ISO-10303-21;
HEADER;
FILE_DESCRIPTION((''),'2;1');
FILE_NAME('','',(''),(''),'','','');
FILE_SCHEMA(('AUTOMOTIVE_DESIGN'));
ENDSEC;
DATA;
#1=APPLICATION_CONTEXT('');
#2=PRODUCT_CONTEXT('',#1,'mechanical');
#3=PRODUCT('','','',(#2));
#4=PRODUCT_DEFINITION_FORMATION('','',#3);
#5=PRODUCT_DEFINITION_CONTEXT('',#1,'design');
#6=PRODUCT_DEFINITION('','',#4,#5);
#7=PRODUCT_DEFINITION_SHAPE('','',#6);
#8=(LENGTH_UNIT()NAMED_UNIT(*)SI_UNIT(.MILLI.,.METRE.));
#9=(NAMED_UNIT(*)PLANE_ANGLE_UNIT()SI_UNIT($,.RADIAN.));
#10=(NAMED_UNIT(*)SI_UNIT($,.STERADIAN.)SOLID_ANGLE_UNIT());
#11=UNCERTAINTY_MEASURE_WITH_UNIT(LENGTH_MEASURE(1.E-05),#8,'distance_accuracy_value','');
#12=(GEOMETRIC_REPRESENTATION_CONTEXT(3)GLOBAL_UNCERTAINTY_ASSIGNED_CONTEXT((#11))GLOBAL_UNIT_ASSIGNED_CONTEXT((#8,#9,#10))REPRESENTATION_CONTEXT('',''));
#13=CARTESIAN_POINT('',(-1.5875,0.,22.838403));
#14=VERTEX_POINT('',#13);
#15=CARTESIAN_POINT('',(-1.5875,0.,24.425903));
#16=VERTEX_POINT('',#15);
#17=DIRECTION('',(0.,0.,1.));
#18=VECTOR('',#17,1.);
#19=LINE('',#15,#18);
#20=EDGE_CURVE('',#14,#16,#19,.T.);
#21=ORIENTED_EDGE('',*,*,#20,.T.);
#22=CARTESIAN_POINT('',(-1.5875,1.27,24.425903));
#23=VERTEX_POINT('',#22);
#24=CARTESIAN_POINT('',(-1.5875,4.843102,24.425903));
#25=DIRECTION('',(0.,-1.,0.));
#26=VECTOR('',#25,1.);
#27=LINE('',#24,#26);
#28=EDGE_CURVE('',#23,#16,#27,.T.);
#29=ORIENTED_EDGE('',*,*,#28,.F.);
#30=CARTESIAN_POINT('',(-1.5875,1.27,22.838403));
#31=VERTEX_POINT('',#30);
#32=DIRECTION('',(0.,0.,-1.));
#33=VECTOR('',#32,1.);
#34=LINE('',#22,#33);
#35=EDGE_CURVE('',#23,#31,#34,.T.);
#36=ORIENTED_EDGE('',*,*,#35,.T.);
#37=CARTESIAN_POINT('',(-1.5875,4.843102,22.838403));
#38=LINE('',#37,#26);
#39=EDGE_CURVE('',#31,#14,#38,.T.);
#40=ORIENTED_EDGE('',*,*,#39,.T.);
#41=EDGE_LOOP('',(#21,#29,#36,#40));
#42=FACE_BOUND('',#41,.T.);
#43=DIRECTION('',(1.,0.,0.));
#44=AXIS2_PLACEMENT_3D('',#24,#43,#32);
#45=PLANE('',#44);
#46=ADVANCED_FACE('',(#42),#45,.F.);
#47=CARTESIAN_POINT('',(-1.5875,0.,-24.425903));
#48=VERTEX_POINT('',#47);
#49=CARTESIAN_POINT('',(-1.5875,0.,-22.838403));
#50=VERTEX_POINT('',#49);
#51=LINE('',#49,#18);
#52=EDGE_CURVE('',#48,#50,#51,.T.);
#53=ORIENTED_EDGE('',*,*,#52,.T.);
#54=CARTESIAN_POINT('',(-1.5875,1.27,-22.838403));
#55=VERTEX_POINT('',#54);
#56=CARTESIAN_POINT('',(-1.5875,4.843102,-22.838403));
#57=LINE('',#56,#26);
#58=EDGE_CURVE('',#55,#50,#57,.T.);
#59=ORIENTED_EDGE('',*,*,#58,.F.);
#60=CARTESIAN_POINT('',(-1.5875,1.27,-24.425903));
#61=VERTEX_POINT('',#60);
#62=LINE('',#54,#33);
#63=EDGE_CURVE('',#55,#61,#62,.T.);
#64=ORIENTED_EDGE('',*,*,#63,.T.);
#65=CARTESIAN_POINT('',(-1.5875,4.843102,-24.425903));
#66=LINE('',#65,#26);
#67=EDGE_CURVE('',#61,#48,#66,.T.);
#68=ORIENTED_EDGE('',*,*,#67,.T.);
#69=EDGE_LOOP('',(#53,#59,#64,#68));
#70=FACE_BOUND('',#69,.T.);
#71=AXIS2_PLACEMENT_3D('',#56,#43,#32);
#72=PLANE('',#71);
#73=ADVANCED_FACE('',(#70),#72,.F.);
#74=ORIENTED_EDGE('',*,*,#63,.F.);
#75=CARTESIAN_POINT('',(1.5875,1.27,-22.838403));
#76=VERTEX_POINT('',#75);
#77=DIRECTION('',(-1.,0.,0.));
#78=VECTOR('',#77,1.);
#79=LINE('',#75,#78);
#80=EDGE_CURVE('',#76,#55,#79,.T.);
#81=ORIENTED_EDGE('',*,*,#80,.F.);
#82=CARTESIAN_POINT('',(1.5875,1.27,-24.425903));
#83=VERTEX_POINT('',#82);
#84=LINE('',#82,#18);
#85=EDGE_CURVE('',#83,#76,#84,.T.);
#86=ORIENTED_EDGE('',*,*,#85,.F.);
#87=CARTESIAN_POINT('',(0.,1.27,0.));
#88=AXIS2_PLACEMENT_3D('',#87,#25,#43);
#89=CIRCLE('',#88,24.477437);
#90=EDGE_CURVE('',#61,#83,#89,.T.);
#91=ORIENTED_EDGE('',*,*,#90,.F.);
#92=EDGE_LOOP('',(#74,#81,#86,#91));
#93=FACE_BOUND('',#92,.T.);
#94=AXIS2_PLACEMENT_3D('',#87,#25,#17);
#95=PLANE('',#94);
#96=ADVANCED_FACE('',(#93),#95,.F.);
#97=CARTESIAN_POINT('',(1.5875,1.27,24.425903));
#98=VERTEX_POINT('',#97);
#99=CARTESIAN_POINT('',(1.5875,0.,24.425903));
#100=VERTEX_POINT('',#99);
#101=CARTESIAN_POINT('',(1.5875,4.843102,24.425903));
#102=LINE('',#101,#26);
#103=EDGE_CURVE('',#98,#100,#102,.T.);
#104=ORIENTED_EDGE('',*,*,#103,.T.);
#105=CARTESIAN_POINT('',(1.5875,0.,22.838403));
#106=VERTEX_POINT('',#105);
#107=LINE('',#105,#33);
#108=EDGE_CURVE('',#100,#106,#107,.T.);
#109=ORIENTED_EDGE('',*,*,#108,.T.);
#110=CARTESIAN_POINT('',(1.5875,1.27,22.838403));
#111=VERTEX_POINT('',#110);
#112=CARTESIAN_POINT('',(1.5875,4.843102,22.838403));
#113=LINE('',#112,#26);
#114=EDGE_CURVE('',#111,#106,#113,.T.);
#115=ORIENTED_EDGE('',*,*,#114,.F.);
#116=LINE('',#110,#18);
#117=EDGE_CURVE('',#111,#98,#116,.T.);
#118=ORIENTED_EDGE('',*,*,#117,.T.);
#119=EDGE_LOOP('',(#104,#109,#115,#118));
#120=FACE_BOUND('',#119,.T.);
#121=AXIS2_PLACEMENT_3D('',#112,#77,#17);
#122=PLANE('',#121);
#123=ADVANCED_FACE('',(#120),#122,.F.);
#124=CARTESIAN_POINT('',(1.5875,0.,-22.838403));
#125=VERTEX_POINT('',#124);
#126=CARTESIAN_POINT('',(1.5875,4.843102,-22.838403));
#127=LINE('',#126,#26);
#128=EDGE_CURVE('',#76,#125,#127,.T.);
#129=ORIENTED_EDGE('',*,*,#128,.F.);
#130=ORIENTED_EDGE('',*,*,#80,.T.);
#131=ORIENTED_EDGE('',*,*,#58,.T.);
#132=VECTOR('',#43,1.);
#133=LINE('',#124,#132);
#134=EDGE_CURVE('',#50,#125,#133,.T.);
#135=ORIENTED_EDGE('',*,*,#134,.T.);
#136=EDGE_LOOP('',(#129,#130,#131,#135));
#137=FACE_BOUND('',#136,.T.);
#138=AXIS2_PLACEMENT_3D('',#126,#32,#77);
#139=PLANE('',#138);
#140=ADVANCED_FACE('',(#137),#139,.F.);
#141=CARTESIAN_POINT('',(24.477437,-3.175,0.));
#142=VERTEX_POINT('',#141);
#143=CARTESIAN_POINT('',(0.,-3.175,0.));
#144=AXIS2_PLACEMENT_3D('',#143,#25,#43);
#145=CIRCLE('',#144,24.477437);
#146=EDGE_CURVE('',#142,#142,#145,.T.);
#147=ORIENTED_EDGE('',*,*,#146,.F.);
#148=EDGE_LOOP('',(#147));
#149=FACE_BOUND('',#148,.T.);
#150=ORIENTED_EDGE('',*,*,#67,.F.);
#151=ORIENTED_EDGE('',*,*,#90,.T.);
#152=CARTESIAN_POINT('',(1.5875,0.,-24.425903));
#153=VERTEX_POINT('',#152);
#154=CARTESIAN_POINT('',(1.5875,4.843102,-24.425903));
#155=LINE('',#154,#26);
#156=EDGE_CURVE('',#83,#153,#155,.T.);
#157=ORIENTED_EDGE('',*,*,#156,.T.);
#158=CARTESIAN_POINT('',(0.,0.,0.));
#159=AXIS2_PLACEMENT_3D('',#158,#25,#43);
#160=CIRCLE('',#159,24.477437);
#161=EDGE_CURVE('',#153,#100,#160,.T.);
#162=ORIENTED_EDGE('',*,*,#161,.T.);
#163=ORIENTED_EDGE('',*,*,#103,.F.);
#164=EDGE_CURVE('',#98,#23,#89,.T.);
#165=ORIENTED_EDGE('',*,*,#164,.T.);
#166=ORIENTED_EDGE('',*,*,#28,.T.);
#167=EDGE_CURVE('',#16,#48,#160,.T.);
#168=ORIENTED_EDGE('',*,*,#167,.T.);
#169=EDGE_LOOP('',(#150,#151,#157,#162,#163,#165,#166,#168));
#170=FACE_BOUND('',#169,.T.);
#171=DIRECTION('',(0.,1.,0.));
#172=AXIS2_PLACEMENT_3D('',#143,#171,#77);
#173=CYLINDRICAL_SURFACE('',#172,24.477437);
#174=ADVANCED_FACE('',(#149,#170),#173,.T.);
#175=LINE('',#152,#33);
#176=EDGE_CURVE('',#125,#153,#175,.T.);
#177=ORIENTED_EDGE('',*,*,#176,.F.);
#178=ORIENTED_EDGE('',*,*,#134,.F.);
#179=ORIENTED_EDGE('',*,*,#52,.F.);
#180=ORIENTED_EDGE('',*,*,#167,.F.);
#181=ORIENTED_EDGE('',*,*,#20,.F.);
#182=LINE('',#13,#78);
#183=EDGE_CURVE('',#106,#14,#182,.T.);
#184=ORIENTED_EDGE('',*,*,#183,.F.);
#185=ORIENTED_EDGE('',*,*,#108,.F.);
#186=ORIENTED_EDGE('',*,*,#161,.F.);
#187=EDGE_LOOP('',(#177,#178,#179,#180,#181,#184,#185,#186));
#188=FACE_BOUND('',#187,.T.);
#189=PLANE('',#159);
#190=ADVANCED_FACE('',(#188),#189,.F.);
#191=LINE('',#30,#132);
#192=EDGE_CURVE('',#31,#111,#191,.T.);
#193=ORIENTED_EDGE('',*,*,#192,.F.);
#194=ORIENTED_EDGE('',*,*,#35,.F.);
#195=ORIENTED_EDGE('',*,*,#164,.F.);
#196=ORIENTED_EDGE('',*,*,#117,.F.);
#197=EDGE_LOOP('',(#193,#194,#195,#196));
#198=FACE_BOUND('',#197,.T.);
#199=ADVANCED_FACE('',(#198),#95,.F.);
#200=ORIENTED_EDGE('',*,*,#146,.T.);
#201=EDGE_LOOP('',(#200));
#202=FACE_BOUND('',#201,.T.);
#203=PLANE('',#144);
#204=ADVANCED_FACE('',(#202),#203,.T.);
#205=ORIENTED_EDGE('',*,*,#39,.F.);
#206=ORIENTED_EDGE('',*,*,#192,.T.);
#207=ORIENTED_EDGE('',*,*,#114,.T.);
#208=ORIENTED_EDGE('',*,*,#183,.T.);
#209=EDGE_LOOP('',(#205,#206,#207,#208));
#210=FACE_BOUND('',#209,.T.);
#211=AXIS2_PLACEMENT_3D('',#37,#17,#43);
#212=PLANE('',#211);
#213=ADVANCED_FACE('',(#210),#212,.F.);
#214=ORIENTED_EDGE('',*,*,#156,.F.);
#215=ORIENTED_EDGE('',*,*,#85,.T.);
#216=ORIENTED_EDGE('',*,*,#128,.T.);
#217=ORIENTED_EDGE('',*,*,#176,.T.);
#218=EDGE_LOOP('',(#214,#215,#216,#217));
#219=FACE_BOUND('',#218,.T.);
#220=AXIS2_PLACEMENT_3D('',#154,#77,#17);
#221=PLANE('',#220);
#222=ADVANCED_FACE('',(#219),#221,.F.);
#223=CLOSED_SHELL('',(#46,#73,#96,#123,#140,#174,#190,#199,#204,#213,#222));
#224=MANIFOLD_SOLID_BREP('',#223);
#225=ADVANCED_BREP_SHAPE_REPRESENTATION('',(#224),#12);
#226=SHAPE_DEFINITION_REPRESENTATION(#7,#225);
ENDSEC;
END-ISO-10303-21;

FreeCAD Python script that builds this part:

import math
import FreeCAD as App
import Part
import Sketcher
Q = App.Units.Quantity

doc = App.newDocument("Part")
params = doc.addObject("Spreadsheet::Sheet", "Params")
for row, (alias, value) in enumerate([
    ("pad1_length", "0.125 in"),
    ("sketch2_width", "0.125 in"),
    ("sketch2_height", "0.0625 in"),
    ("pad2_length", "0.05 in"),
], start=1):
    params.set(f"A{row}", alias)
    params.set(f"B{row}", "=" + value)
    params.setAlias(f"B{row}", alias)

body = doc.addObject("PartDesign::Body", "Body")

# Sketch on XZ plane
sketch1 = doc.addObject("Sketcher::SketchObject", "Sketch")
body.addObject(sketch1)
sketch1.AttachmentSupport = (doc.XZ_Plane, [""])
sketch1.MapMode = "FlatFace"
sketch1.addGeometry(Part.Circle(App.Vector(0, 0, 0), App.Vector(0, 0, 1), 24), False)
sketch1.addConstraint(Sketcher.Constraint("Coincident", 0, 3, -1, 1))
sketch1.addConstraint(Sketcher.Constraint("Diameter", 0, Q("48.954873 mm")))
pad1 = doc.addObject("PartDesign::Pad", "Pad")
body.addObject(pad1)
pad1.Profile = sketch1
pad1.setExpression("Length", "Params.pad1_length")

# Sketch on XZ plane
sketch2 = doc.addObject("Sketcher::SketchObject", "Sketch001")
body.addObject(sketch2)
sketch2.AttachmentSupport = (doc.XZ_Plane, [""])
sketch2.MapMode = "FlatFace"
sketch2.AttachmentOffset = App.Placement(App.Vector(0, 0, -0.05 * 25.4), App.Rotation())
sketch2.addGeometry(Part.LineSegment(App.Vector(1.6, -22.8, 0), App.Vector(1.6, -24.4, 0)), False)
sketch2.addGeometry(Part.ArcOfCircle(Part.Circle(App.Vector(0, 0, 0), App.Vector(0, 0, 1), 24.5), math.radians(-93.72), math.radians(-86.28)), False)
sketch2.addGeometry(Part.LineSegment(App.Vector(-1.6, -24.4, 0), App.Vector(-1.6, -22.8, 0)), False)
sketch2.addGeometry(Part.LineSegment(App.Vector(-1.6, -22.8, 0), App.Vector(1.6, -22.8, 0)), False)
sketch2.addGeometry(Part.LineSegment(App.Vector(-1.6, 22.8, 0), App.Vector(-1.6, 24.4, 0)), False)
sketch2.addGeometry(Part.ArcOfCircle(Part.Circle(App.Vector(0, 0, 0), App.Vector(0, 0, 1), 24.5), math.radians(86.28), math.radians(93.72)), False)
sketch2.addGeometry(Part.LineSegment(App.Vector(1.6, 24.4, 0), App.Vector(1.6, 22.8, 0)), False)
sketch2.addGeometry(Part.LineSegment(App.Vector(1.6, 22.8, 0), App.Vector(-1.6, 22.8, 0)), False)
sketch2.addConstraint(Sketcher.Constraint("Coincident", 0, 2, 1, 2))
sketch2.addConstraint(Sketcher.Constraint("Coincident", 1, 1, 2, 1))
sketch2.addConstraint(Sketcher.Constraint("Coincident", 2, 2, 3, 1))
sketch2.addConstraint(Sketcher.Constraint("Coincident", 3, 2, 0, 1))
sketch2.addConstraint(Sketcher.Constraint("Coincident", 4, 2, 5, 2))
sketch2.addConstraint(Sketcher.Constraint("Coincident", 5, 1, 6, 1))
sketch2.addConstraint(Sketcher.Constraint("Coincident", 6, 2, 7, 1))
sketch2.addConstraint(Sketcher.Constraint("Coincident", 7, 2, 4, 1))
sketch2.addConstraint(Sketcher.Constraint("Vertical", 0))
sketch2.addConstraint(Sketcher.Constraint("Vertical", 2))
sketch2.addConstraint(Sketcher.Constraint("Horizontal", 3))
sketch2.addConstraint(Sketcher.Constraint("Vertical", 4))
sketch2.addConstraint(Sketcher.Constraint("Vertical", 6))
sketch2.addConstraint(Sketcher.Constraint("Horizontal", 7))
sketch2.addConstraint(Sketcher.Constraint("Coincident", 1, 3, -1, 1))
sketch2.addConstraint(Sketcher.Constraint("Coincident", 5, 3, -1, 1))
sketch2.addConstraint(Sketcher.Constraint("Equal", 1, 5))
sketch2.addConstraint(Sketcher.Constraint("Symmetric", 2, 2, 6, 2, -1, 1))
sketch2.addConstraint(Sketcher.Constraint("Horizontal", 0, 2, 1, 1))
sketch2.addConstraint(Sketcher.Constraint("Horizontal", 4, 2, 5, 1))
sketch2.addConstraint(Sketcher.Constraint("DistanceX", 3, 1, 3, 2, Q("0.125 in")))
sketch2.addConstraint(Sketcher.Constraint("DistanceY", 0, 2, 0, 1, Q("0.0625 in")))
sketch2.addConstraint(Sketcher.Constraint("Radius", 1, Q("24.477437 mm")))
sketch2.setExpression("Constraints[20]", "Params.sketch2_width")
sketch2.setExpression("Constraints[21]", "Params.sketch2_height")
pad2 = doc.addObject("PartDesign::Pad", "Pad001")
body.addObject(pad2)
pad2.Profile = sketch2
pad2.setExpression("Length", "Params.pad2_length")

doc.recompute()
